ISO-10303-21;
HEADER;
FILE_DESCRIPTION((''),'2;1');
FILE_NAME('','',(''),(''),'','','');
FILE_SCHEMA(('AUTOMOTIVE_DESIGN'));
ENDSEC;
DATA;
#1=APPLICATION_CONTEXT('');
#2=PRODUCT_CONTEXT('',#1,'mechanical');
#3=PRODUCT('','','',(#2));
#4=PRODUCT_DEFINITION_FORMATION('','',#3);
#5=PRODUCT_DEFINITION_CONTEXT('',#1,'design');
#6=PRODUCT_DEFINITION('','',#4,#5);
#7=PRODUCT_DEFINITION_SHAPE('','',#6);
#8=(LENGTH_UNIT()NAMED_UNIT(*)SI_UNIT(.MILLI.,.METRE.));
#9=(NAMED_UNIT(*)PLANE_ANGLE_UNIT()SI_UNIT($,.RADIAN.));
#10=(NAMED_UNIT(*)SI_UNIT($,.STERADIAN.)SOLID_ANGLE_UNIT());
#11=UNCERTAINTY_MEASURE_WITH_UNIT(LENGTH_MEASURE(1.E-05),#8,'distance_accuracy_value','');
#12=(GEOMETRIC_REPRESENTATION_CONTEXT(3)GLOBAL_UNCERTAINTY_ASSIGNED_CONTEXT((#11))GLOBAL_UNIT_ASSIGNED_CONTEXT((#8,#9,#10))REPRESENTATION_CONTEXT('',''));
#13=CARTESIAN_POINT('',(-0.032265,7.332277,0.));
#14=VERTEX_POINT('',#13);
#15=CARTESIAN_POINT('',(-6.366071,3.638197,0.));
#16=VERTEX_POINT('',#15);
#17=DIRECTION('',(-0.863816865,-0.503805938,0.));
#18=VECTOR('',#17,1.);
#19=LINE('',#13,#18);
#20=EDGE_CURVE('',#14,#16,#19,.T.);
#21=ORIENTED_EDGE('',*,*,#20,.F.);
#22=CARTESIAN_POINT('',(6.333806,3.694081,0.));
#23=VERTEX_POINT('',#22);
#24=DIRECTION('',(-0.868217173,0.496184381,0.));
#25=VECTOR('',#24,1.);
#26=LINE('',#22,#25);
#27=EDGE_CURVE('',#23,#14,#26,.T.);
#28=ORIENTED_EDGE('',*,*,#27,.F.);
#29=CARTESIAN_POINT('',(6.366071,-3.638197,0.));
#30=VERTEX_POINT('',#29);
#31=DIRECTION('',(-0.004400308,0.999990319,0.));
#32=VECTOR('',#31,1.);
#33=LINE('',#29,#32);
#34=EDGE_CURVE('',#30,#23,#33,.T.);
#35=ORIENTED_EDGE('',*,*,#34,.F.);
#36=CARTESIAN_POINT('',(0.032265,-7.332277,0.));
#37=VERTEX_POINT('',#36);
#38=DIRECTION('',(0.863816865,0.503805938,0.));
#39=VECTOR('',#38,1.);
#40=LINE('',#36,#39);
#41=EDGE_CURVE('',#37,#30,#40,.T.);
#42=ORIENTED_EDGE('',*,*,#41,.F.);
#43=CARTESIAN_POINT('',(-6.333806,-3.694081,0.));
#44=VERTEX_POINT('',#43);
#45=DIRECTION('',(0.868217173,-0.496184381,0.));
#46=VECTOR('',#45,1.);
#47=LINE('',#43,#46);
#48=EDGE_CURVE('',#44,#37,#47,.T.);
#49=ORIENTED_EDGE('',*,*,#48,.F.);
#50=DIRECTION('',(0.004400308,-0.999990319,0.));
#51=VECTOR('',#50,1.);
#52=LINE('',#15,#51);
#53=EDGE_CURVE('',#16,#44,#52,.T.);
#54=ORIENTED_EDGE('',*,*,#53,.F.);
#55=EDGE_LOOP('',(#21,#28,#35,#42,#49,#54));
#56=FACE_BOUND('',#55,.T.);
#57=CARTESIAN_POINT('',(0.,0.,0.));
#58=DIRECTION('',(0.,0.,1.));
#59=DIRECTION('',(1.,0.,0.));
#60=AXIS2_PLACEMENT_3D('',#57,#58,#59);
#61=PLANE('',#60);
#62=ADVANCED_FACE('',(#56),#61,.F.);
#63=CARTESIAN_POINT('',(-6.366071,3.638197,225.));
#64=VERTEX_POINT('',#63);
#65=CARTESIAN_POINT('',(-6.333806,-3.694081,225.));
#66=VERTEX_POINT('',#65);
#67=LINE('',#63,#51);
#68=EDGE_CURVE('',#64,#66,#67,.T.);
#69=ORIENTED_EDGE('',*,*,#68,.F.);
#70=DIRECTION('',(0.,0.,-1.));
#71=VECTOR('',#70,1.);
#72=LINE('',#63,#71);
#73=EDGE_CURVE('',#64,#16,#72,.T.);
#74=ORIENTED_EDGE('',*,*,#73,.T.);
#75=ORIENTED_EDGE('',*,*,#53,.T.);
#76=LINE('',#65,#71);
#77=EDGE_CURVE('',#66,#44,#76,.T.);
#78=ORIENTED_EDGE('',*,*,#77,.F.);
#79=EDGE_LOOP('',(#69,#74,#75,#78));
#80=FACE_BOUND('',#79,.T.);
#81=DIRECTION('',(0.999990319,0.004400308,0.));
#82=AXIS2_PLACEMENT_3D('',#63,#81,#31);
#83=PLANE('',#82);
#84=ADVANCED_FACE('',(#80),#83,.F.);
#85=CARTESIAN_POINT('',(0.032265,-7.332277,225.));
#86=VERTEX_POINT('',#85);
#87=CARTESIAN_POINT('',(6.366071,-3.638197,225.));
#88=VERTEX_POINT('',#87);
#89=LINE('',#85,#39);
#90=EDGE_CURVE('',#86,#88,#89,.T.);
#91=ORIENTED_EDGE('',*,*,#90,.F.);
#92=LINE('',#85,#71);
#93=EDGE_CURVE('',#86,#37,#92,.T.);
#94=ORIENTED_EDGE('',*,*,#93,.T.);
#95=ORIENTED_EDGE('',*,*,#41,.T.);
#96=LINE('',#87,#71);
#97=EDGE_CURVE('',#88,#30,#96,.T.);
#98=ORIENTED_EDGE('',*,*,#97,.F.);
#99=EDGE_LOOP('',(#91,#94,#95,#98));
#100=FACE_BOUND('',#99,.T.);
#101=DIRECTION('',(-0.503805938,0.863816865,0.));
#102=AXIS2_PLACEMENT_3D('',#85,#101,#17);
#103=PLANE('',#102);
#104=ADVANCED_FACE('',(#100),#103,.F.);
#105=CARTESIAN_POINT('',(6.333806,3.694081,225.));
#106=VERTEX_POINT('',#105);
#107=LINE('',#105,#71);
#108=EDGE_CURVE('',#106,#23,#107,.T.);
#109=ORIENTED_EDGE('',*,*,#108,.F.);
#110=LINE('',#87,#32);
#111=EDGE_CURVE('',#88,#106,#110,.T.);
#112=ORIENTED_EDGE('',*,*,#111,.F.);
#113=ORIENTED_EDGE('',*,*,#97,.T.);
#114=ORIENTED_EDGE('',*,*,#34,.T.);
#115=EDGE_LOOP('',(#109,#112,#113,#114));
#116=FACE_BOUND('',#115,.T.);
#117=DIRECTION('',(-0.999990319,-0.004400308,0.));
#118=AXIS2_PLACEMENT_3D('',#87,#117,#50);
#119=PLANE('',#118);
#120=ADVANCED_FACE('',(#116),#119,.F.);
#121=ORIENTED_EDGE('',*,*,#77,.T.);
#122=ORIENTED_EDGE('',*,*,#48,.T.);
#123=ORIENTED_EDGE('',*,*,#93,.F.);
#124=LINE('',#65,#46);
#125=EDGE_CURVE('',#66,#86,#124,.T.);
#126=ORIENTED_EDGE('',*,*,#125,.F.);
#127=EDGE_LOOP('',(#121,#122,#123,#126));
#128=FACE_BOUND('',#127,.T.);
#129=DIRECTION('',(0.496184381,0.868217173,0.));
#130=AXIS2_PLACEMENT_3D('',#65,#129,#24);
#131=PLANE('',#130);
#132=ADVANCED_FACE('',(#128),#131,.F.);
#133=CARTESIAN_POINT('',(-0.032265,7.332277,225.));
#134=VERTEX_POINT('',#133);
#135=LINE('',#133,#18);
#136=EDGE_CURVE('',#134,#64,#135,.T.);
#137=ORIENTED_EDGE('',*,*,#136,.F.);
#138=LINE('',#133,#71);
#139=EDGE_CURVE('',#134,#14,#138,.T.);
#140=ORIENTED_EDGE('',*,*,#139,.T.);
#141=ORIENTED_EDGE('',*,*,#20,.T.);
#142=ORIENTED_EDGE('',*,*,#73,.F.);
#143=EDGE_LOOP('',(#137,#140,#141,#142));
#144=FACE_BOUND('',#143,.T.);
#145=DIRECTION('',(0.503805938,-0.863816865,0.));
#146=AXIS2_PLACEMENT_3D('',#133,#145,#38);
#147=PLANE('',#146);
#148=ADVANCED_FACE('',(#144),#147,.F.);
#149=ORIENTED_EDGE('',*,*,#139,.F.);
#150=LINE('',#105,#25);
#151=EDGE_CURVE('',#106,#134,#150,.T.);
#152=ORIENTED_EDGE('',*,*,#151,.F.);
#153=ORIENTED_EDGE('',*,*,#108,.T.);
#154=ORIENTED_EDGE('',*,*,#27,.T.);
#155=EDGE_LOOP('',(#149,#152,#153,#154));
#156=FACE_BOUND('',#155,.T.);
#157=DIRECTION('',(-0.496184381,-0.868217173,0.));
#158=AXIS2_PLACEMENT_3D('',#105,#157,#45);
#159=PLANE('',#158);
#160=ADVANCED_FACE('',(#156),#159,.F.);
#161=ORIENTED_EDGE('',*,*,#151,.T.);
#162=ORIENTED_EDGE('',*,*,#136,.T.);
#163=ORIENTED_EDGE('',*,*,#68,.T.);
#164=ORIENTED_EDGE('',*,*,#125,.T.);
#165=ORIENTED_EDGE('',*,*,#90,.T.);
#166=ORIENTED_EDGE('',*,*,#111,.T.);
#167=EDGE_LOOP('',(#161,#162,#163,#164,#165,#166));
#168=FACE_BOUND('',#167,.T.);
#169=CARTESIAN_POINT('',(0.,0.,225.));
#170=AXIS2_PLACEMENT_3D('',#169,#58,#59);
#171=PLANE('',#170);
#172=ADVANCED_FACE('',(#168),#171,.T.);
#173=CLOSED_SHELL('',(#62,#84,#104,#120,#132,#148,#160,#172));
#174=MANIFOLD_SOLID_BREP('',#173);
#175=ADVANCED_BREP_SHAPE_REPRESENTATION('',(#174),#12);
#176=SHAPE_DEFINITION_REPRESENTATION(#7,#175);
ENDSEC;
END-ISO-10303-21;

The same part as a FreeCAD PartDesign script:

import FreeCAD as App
import Part
import Sketcher
Q = App.Units.Quantity

doc = App.newDocument("Part")
params = doc.addObject("Spreadsheet::Sheet", "Params")
for row, (alias, value) in enumerate([
    ("pad1_length", "225 mm"),
], start=1):
    params.set(f"A{row}", alias)
    params.set(f"B{row}", "=" + value)
    params.setAlias(f"B{row}", alias)

body = doc.addObject("PartDesign::Body", "Body")

# Sketch on XY plane
sketch1 = body.newObject("Sketcher::SketchObject", "Sketch")
sketch1.AttachmentSupport = (doc.getObject("XY_Plane"), [""])
sketch1.MapMode = "FlatFace"
sketch1.addGeometry([
    Part.LineSegment(App.Vector(6.333806, 3.694081, 0), App.Vector(-0.032265, 7.332277, 0)),  # 0
    Part.LineSegment(App.Vector(-0.032265, 7.332277, 0), App.Vector(-6.366071, 3.638197, 0)),  # 1
    Part.LineSegment(App.Vector(-6.366071, 3.638197, 0), App.Vector(-6.333806, -3.694081, 0)),  # 2
    Part.LineSegment(App.Vector(-6.333806, -3.694081, 0), App.Vector(0.032265, -7.332277, 0)),  # 3
    Part.LineSegment(App.Vector(0.032265, -7.332277, 0), App.Vector(6.366071, -3.638197, 0)),  # 4
    Part.LineSegment(App.Vector(6.366071, -3.638197, 0), App.Vector(6.333806, 3.694081, 0)),  # 5
], False)
sketch1.addConstraint([
    Sketcher.Constraint("Coincident", 0, 2, 1, 1),
    Sketcher.Constraint("Coincident", 1, 2, 2, 1),
    Sketcher.Constraint("Coincident", 2, 2, 3, 1),
    Sketcher.Constraint("Coincident", 3, 2, 4, 1),
    Sketcher.Constraint("Coincident", 4, 2, 5, 1),
    Sketcher.Constraint("Coincident", 5, 2, 0, 1),
    Sketcher.Constraint("Symmetric", 0, 2, 3, 2, -1, 1),
    Sketcher.Constraint("Symmetric", 1, 2, 4, 2, -1, 1),
    Sketcher.Constraint("Symmetric", 2, 2, 5, 2, -1, 1),
    Sketcher.Constraint("Equal", 0, 1),
    Sketcher.Constraint("Equal", 1, 2),
    Sketcher.Constraint("Distance", 0, Q("7.332348 mm")),
    Sketcher.Constraint("DistanceX", 1, 2, -1, 1, Q("6.366071 mm")),
    Sketcher.Constraint("DistanceY", 2, 2, -1, 1, Q("3.694081 mm")),
    Sketcher.Constraint("DistanceY", 1, 2, 0, 2, Q("3.694081 mm")),
])
pad1 = body.newObject("PartDesign::Pad", "Pad")
pad1.Profile = sketch1
pad1.setExpression("Length", "Params.pad1_length")

doc.recompute()
